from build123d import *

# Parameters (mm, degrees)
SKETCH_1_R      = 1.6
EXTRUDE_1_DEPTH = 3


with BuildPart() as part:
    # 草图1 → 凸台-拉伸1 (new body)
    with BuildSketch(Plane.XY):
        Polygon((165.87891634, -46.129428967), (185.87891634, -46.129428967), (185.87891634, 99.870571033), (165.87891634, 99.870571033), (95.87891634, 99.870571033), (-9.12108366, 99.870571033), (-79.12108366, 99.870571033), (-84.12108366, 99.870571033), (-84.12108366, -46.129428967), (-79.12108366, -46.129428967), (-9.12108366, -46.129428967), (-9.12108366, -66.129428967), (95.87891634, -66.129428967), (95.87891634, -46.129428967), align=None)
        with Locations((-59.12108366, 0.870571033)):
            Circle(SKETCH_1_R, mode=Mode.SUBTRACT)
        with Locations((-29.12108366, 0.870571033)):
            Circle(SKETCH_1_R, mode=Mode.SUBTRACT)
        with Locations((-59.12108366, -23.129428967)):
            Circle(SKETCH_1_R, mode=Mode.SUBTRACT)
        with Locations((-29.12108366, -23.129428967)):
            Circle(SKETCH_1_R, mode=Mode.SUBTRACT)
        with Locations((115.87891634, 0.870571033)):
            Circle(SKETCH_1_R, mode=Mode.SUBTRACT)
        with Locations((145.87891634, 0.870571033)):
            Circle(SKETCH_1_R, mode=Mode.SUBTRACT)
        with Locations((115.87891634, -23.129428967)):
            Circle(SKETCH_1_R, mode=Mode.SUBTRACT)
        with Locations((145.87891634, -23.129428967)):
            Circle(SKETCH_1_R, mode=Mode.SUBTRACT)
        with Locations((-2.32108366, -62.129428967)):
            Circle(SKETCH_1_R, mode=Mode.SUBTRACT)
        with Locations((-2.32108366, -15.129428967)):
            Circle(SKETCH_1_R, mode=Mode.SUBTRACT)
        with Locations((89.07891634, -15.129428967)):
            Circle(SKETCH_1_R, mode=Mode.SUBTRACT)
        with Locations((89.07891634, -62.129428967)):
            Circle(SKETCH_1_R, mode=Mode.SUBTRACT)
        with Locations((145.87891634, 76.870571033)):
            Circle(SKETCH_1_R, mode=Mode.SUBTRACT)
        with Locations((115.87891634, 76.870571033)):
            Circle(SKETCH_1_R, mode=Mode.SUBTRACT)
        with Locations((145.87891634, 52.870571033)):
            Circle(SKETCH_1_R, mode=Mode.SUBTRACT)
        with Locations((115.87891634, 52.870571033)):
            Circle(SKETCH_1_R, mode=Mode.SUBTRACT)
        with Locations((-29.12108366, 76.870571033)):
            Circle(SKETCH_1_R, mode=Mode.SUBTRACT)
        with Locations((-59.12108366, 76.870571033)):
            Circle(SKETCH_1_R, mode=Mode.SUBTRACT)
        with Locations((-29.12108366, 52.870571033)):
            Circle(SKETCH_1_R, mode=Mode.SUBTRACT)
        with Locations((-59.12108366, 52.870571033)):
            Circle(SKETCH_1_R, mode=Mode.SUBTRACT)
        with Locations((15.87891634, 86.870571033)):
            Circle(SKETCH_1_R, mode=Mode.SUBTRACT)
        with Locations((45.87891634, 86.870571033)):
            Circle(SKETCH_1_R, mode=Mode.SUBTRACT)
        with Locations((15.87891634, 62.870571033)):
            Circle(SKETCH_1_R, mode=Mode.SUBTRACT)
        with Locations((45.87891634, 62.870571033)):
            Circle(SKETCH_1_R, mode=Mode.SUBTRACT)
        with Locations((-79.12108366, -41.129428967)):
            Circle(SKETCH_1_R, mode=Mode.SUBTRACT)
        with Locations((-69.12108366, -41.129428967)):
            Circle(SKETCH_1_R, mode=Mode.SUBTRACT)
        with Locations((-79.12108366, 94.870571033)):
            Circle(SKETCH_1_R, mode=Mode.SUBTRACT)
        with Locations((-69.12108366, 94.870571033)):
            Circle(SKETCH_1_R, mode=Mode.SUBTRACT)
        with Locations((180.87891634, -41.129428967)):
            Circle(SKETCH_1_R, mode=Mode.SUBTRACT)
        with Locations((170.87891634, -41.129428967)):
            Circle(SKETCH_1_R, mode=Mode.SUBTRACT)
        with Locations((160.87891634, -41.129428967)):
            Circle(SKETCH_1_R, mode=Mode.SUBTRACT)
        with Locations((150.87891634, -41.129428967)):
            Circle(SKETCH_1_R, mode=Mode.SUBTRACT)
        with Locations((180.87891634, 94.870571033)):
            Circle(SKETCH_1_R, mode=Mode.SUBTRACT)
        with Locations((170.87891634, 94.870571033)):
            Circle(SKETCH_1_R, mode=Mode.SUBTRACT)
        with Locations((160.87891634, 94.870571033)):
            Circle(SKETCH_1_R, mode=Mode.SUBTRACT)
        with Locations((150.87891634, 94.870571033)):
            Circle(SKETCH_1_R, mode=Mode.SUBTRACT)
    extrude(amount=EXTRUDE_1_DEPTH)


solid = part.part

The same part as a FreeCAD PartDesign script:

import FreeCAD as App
import Part
import Sketcher

V = App.Vector
Q = App.Units.Quantity

doc = App.newDocument("Part")
body = doc.addObject("PartDesign::Body", "Body")

sketch1 = body.newObject("Sketcher::SketchObject", "Sketch")
sketch1.AttachmentSupport = (doc.getObject("XY_Plane"), [""])
sketch1.MapMode = "FlatFace"
sketch1.addGeometry(Part.LineSegment(V(185.9, -46.1, 0), V(185.9, 99.9, 0)), False)
sketch1.addGeometry(Part.LineSegment(V(185.9, 99.9, 0), V(-84.1, 99.9, 0)), False)
sketch1.addGeometry(Part.LineSegment(V(-84.1, 99.9, 0), V(-84.1, -46.1, 0)), False)
sketch1.addGeometry(Part.LineSegment(V(-84.1, -46.1, 0), V(-9.1, -46.1, 0)), False)
sketch1.addGeometry(Part.LineSegment(V(-9.1, -46.1, 0), V(-9.1, -66.1, 0)), False)
sketch1.addGeometry(Part.LineSegment(V(-9.1, -66.1, 0), V(95.9, -66.1, 0)), False)
sketch1.addGeometry(Part.LineSegment(V(95.9, -66.1, 0), V(95.9, -46.1, 0)), False)
sketch1.addGeometry(Part.LineSegment(V(95.9, -46.1, 0), V(185.9, -46.1, 0)), False)
sketch1.addGeometry(Part.Circle(V(-79.1, -41.1, 0), V(0, 0, 1), 1.6), False)
sketch1.addGeometry(Part.Circle(V(-69.1, -41.1, 0), V(0, 0, 1), 1.6), False)
sketch1.addGeometry(Part.Circle(V(-2.3, -62.1, 0), V(0, 0, 1), 1.6), False)
sketch1.addGeometry(Part.Circle(V(-59.1, -23.1, 0), V(0, 0, 1), 1.6), False)
sketch1.addGeometry(Part.Circle(V(-29.1, -23.1, 0), V(0, 0, 1), 1.6), False)
sketch1.addGeometry(Part.Circle(V(-59.1, 0.9, 0), V(0, 0, 1), 1.6), False)
sketch1.addGeometry(Part.Circle(V(-29.1, 0.9, 0), V(0, 0, 1), 1.6), False)
sketch1.addGeometry(Part.Circle(V(-2.3, -15.1, 0), V(0, 0, 1), 1.6), False)
sketch1.addGeometry(Part.Circle(V(89.1, -62.1, 0), V(0, 0, 1), 1.6), False)
sketch1.addGeometry(Part.Circle(V(150.9, -41.1, 0), V(0, 0, 1), 1.6), False)
sketch1.addGeometry(Part.Circle(V(160.9, -41.1, 0), V(0, 0, 1), 1.6), False)
sketch1.addGeometry(Part.Circle(V(170.9, -41.1, 0), V(0, 0, 1), 1.6), False)
sketch1.addGeometry(Part.Circle(V(180.9, -41.1, 0), V(0, 0, 1), 1.6), False)
sketch1.addGeometry(Part.Circle(V(89.1, -15.1, 0), V(0, 0, 1), 1.6), False)
sketch1.addGeometry(Part.Circle(V(115.9, -23.1, 0), V(0, 0, 1), 1.6), False)
sketch1.addGeometry(Part.Circle(V(115.9, 0.9, 0), V(0, 0, 1), 1.6), False)
sketch1.addGeometry(Part.Circle(V(145.9, -23.1, 0), V(0, 0, 1), 1.6), False)
sketch1.addGeometry(Part.Circle(V(145.9, 0.9, 0), V(0, 0, 1), 1.6), False)
sketch1.addGeometry(Part.Circle(V(-59.1, 52.9, 0), V(0, 0, 1), 1.6), False)
sketch1.addGeometry(Part.Circle(V(-29.1, 52.9, 0), V(0, 0, 1), 1.6), False)
sketch1.addGeometry(Part.Circle(V(-59.1, 76.9, 0), V(0, 0, 1), 1.6), False)
sketch1.addGeometry(Part.Circle(V(-79.1, 94.9, 0), V(0, 0, 1), 1.6), False)
sketch1.addGeometry(Part.Circle(V(-69.1, 94.9, 0), V(0, 0, 1), 1.6), False)
sketch1.addGeometry(Part.Circle(V(-29.1, 76.9, 0), V(0, 0, 1), 1.6), False)
sketch1.addGeometry(Part.Circle(V(15.9, 62.9, 0), V(0, 0, 1), 1.6), False)
sketch1.addGeometry(Part.Circle(V(45.9, 62.9, 0), V(0, 0, 1), 1.6), False)
sketch1.addGeometry(Part.Circle(V(15.9, 86.9, 0), V(0, 0, 1), 1.6), False)
sketch1.addGeometry(Part.Circle(V(45.9, 86.9, 0), V(0, 0, 1), 1.6), False)
sketch1.addGeometry(Part.Circle(V(115.9, 52.9, 0), V(0, 0, 1), 1.6), False)
sketch1.addGeometry(Part.Circle(V(145.9, 52.9, 0), V(0, 0, 1), 1.6), False)
sketch1.addGeometry(Part.Circle(V(115.9, 76.9, 0), V(0, 0, 1), 1.6), False)
sketch1.addGeometry(Part.Circle(V(145.9, 76.9, 0), V(0, 0, 1), 1.6), False)
sketch1.addGeometry(Part.Circle(V(150.9, 94.9, 0), V(0, 0, 1), 1.6), False)
sketch1.addGeometry(Part.Circle(V(160.9, 94.9, 0), V(0, 0, 1), 1.6), False)
sketch1.addGeometry(Part.Circle(V(170.9, 94.9, 0), V(0, 0, 1), 1.6), False)
sketch1.addGeometry(Part.Circle(V(180.9, 94.9, 0), V(0, 0, 1), 1.6), False)
sketch1.addConstraint(Sketcher.Constraint("Coincident", 0, 2, 1, 1))
sketch1.addConstraint(Sketcher.Constraint("Coincident", 1, 2, 2, 1))
sketch1.addConstraint(Sketcher.Constraint("Coincident", 2, 2, 3, 1))
sketch1.addConstraint(Sketcher.Constraint("Coincident", 3, 2, 4, 1))
sketch1.addConstraint(Sketcher.Constraint("Coincident", 4, 2, 5, 1))
sketch1.addConstraint(Sketcher.Constraint("Coincident", 5, 2, 6, 1))
sketch1.addConstraint(Sketcher.Constraint("Coincident", 6, 2, 7, 1))
sketch1.addConstraint(Sketcher.Constraint("Coincident", 7, 2, 0, 1))
sketch1.addConstraint(Sketcher.Constraint("Vertical", 0))
sketch1.addConstraint(Sketcher.Constraint("Horizontal", 1))
sketch1.addConstraint(Sketcher.Constraint("Vertical", 2))
sketch1.addConstraint(Sketcher.Constraint("Horizontal", 3))
sketch1.addConstraint(Sketcher.Constraint("Vertical", 4))
sketch1.addConstraint(Sketcher.Constraint("Horizontal", 5))
sketch1.addConstraint(Sketcher.Constraint("Vertical", 6))
sketch1.addConstraint(Sketcher.Constraint("Horizontal", 7))
sketch1.addConstraint(Sketcher.Constraint("Equal", 8, 9))
sketch1.addConstraint(Sketcher.Constraint("Equal", 9, 10))
sketch1.addConstraint(Sketcher.Constraint("Equal", 10, 11))
sketch1.addConstraint(Sketcher.Constraint("Equal", 11, 12))
sketch1.addConstraint(Sketcher.Constraint("Equal", 12, 13))
sketch1.addConstraint(Sketcher.Constraint("Equal", 13, 14))
sketch1.addConstraint(Sketcher.Constraint("Equal", 14, 15))
sketch1.addConstraint(Sketcher.Constraint("Equal", 15, 16))
sketch1.addConstraint(Sketcher.Constraint("Equal", 16, 17))
sketch1.addConstraint(Sketcher.Constraint("Equal", 17, 18))
sketch1.addConstraint(Sketcher.Constraint("Equal", 18, 19))
sketch1.addConstraint(Sketcher.Constraint("Equal", 19, 20))
sketch1.addConstraint(Sketcher.Constraint("Equal", 20, 21))
sketch1.addConstraint(Sketcher.Constraint("Equal", 21, 22))
sketch1.addConstraint(Sketcher.Constraint("Equal", 22, 23))
sketch1.addConstraint(Sketcher.Constraint("Equal", 23, 24))
sketch1.addConstraint(Sketcher.Constraint("Equal", 24, 25))
sketch1.addConstraint(Sketcher.Constraint("Equal", 25, 26))
sketch1.addConstraint(Sketcher.Constraint("Equal", 26, 27))
sketch1.addConstraint(Sketcher.Constraint("Equal", 27, 28))
sketch1.addConstraint(Sketcher.Constraint("Equal", 28, 29))
sketch1.addConstraint(Sketcher.Constraint("Equal", 29, 30))
sketch1.addConstraint(Sketcher.Constraint("Equal", 30, 31))
sketch1.addConstraint(Sketcher.Constraint("Equal", 31, 32))
sketch1.addConstraint(Sketcher.Constraint("Equal", 32, 33))
sketch1.addConstraint(Sketcher.Constraint("Equal", 33, 34))
sketch1.addConstraint(Sketcher.Constraint("Equal", 34, 35))
sketch1.addConstraint(Sketcher.Constraint("Equal", 35, 36))
sketch1.addConstraint(Sketcher.Constraint("Equal", 36, 37))
sketch1.addConstraint(Sketcher.Constraint("Equal", 37, 38))
sketch1.addConstraint(Sketcher.Constraint("Equal", 38, 39))
sketch1.addConstraint(Sketcher.Constraint("Equal", 39, 40))
sketch1.addConstraint(Sketcher.Constraint("Equal", 40, 41))
sketch1.addConstraint(Sketcher.Constraint("Equal", 41, 42))
sketch1.addConstraint(Sketcher.Constraint("Equal", 42, 43))
sketch1.addConstraint(Sketcher.Constraint("Horizontal", 8, 3, 9, 3))
sketch1.addConstraint(Sketcher.Constraint("Horizontal", 11, 3, 12, 3))
sketch1.addConstraint(Sketcher.Constraint("Horizontal", 13, 3, 14, 3))
sketch1.addConstraint(Sketcher.Constraint("Horizontal", 10, 3, 16, 3))
sketch1.addConstraint(Sketcher.Constraint("Horizontal", 9, 3, 17, 3))
sketch1.addConstraint(Sketcher.Constraint("Horizontal", 17, 3, 18, 3))
sketch1.addConstraint(Sketcher.Constraint("Horizontal", 18, 3, 19, 3))
sketch1.addConstraint(Sketcher.Constraint("Horizontal", 19, 3, 20, 3))
sketch1.addConstraint(Sketcher.Constraint("Horizontal", 15, 3, 21, 3))
sketch1.addConstraint(Sketcher.Constraint("Horizontal", 12, 3, 22, 3))
sketch1.addConstraint(Sketcher.Constraint("Horizontal", 14, 3, 23, 3))
sketch1.addConstraint(Sketcher.Constraint("Horizontal", 22, 3, 24, 3))
sketch1.addConstraint(Sketcher.Constraint("Horizontal", 23, 3, 25, 3))
sketch1.addConstraint(Sketcher.Constraint("Horizontal", 26, 3, 27, 3))
sketch1.addConstraint(Sketcher.Constraint("Horizontal", 29, 3, 30, 3))
sketch1.addConstraint(Sketcher.Constraint("Horizontal", 28, 3, 31, 3))
sketch1.addConstraint(Sketcher.Constraint("Horizontal", 32, 3, 33, 3))
sketch1.addConstraint(Sketcher.Constraint("Horizontal", 34, 3, 35, 3))
sketch1.addConstraint(Sketcher.Constraint("Horizontal", 27, 3, 36, 3))
sketch1.addConstraint(Sketcher.Constraint("Horizontal", 36, 3, 37, 3))
sketch1.addConstraint(Sketcher.Constraint("Horizontal", 31, 3, 38, 3))
sketch1.addConstraint(Sketcher.Constraint("Horizontal", 38, 3, 39, 3))
sketch1.addConstraint(Sketcher.Constraint("Horizontal", 30, 3, 40, 3))
sketch1.addConstraint(Sketcher.Constraint("Horizontal", 40, 3, 41, 3))
sketch1.addConstraint(Sketcher.Constraint("Horizontal", 41, 3, 42, 3))
sketch1.addConstraint(Sketcher.Constraint("Horizontal", 42, 3, 43, 3))
sketch1.addConstraint(Sketcher.Constraint("Horizontal", 3, 2, 6, 2))
sketch1.addConstraint(Sketcher.Constraint("Vertical", 11, 3, 13, 3))
sketch1.addConstraint(Sketcher.Constraint("Vertical", 12, 3, 14, 3))
sketch1.addConstraint(Sketcher.Constraint("Vertical", 10, 3, 15, 3))
sketch1.addConstraint(Sketcher.Constraint("Vertical", 16, 3, 21, 3))
sketch1.addConstraint(Sketcher.Constraint("Vertical", 22, 3, 23, 3))
sketch1.addConstraint(Sketcher.Constraint("Vertical", 24, 3, 25, 3))
sketch1.addConstraint(Sketcher.Constraint("Vertical", 13, 3, 26, 3))
sketch1.addConstraint(Sketcher.Constraint("Vertical", 14, 3, 27, 3))
sketch1.addConstraint(Sketcher.Constraint("Vertical", 26, 3, 28, 3))
sketch1.addConstraint(Sketcher.Constraint("Vertical", 8, 3, 29, 3))
sketch1.addConstraint(Sketcher.Constraint("Vertical", 9, 3, 30, 3))
sketch1.addConstraint(Sketcher.Constraint("Vertical", 27, 3, 31, 3))
sketch1.addConstraint(Sketcher.Constraint("Vertical", 32, 3, 34, 3))
sketch1.addConstraint(Sketcher.Constraint("Vertical", 33, 3, 35, 3))
sketch1.addConstraint(Sketcher.Constraint("Vertical", 23, 3, 36, 3))
sketch1.addConstraint(Sketcher.Constraint("Vertical", 25, 3, 37, 3))
sketch1.addConstraint(Sketcher.Constraint("Vertical", 36, 3, 38, 3))
sketch1.addConstraint(Sketcher.Constraint("Vertical", 37, 3, 39, 3))
sketch1.addConstraint(Sketcher.Constraint("Vertical", 17, 3, 40, 3))
sketch1.addConstraint(Sketcher.Constraint("Vertical", 18, 3, 41, 3))
sketch1.addConstraint(Sketcher.Constraint("Vertical", 19, 3, 42, 3))
sketch1.addConstraint(Sketcher.Constraint("Vertical", 20, 3, 43, 3))
sketch1.addConstraint(Sketcher.Constraint("Diameter", 8, Q("3.2 mm")))
sketch1.addConstraint(Sketcher.Constraint("DistanceX", 1, 2, 1, 1, Q("270 mm")))
sketch1.addConstraint(Sketcher.Constraint("DistanceX", 3, 1, 3, 2, Q("75 mm")))
sketch1.addConstraint(Sketcher.Constraint("DistanceX", 5, 1, 5, 2, Q("105 mm")))
sketch1.addConstraint(Sketcher.Constraint("DistanceY", 0, 1, 0, 2, Q("146 mm")))
sketch1.addConstraint(Sketcher.Constraint("DistanceY", 4, 2, 4, 1, Q("20 mm")))
sketch1.addConstraint(Sketcher.Constraint("DistanceX", 8, 3, 9, 3, Q("10 mm")))
sketch1.addConstraint(Sketcher.Constraint("DistanceY", 10, 3, 9, 3, Q("21 mm")))
sketch1.addConstraint(Sketcher.Constraint("DistanceX", 9, 3, 11, 3, Q("10 mm")))
sketch1.addConstraint(Sketcher.Constraint("DistanceY", 9, 3, 11, 3, Q("18 mm")))
sketch1.addConstraint(Sketcher.Constraint("DistanceX", 11, 3, 12, 3, Q("30 mm")))
sketch1.addConstraint(Sketcher.Constraint("DistanceY", 11, 3, 13, 3, Q("24 mm")))
sketch1.addConstraint(Sketcher.Constraint("DistanceY", 12, 3, 15, 3, Q("8 mm")))
sketch1.addConstraint(Sketcher.Constraint("DistanceX", 12, 3, 17, 3, Q("180 mm")))
sketch1.addConstraint(Sketcher.Constraint("DistanceX", 17, 3, 18, 3, Q("10 mm")))
sketch1.addConstraint(Sketcher.Constraint("DistanceX", 18, 3, 19, 3, Q("10 mm")))
sketch1.addConstraint(Sketcher.Constraint("DistanceX", 19, 3, 20, 3, Q("10 mm")))
sketch1.addConstraint(Sketcher.Constraint("DistanceX", 22, 3, 17, 3, Q("35 mm")))
sketch1.addConstraint(Sketcher.Constraint("DistanceX", 24, 3, 17, 3, Q("5 mm")))
sketch1.addConstraint(Sketcher.Constraint("DistanceY", 13, 3, 26, 3, Q("52 mm")))
sketch1.addConstraint(Sketcher.Constraint("DistanceY", 26, 3, 28, 3, Q("24 mm")))
sketch1.addConstraint(Sketcher.Constraint("DistanceY", 28, 3, 29, 3, Q("18 mm")))
sketch1.addConstraint(Sketcher.Constraint("DistanceX", 27, 3, 32, 3, Q("45 mm")))
sketch1.addConstraint(Sketcher.Constraint("DistanceY", 27, 3, 32, 3, Q("10 mm")))
sketch1.addConstraint(Sketcher.Constraint("DistanceX", 32, 3, 33, 3, Q("30 mm")))
sketch1.addConstraint(Sketcher.Constraint("DistanceY", 32, 3, 34, 3, Q("24 mm")))
sketch1.addConstraint(Sketcher.Constraint("DistanceX", 43, 3, 0, 2, Q("5 mm")))
sketch1.addConstraint(Sketcher.Constraint("DistanceY", 43, 3, 0, 2, Q("5 mm")))
sketch1.addConstraint(Sketcher.Constraint("DistanceX", 9, 3, 10, 3, Q("66.8 mm")))
sketch1.addConstraint(Sketcher.Constraint("DistanceX", 10, 3, 16, 3, Q("91.4 mm")))
sketch1.addConstraint(Sketcher.Constraint("DistanceY", 8, 3, -1, 1, Q("41.129429 mm")))
sketch1.addConstraint(Sketcher.Constraint("DistanceX", 8, 3, -1, 1, Q("79.121084 mm")))
pad1 = body.newObject("PartDesign::Pad", "Pad")
pad1.Profile = sketch1
pad1.Length = 3

doc.recompute()
